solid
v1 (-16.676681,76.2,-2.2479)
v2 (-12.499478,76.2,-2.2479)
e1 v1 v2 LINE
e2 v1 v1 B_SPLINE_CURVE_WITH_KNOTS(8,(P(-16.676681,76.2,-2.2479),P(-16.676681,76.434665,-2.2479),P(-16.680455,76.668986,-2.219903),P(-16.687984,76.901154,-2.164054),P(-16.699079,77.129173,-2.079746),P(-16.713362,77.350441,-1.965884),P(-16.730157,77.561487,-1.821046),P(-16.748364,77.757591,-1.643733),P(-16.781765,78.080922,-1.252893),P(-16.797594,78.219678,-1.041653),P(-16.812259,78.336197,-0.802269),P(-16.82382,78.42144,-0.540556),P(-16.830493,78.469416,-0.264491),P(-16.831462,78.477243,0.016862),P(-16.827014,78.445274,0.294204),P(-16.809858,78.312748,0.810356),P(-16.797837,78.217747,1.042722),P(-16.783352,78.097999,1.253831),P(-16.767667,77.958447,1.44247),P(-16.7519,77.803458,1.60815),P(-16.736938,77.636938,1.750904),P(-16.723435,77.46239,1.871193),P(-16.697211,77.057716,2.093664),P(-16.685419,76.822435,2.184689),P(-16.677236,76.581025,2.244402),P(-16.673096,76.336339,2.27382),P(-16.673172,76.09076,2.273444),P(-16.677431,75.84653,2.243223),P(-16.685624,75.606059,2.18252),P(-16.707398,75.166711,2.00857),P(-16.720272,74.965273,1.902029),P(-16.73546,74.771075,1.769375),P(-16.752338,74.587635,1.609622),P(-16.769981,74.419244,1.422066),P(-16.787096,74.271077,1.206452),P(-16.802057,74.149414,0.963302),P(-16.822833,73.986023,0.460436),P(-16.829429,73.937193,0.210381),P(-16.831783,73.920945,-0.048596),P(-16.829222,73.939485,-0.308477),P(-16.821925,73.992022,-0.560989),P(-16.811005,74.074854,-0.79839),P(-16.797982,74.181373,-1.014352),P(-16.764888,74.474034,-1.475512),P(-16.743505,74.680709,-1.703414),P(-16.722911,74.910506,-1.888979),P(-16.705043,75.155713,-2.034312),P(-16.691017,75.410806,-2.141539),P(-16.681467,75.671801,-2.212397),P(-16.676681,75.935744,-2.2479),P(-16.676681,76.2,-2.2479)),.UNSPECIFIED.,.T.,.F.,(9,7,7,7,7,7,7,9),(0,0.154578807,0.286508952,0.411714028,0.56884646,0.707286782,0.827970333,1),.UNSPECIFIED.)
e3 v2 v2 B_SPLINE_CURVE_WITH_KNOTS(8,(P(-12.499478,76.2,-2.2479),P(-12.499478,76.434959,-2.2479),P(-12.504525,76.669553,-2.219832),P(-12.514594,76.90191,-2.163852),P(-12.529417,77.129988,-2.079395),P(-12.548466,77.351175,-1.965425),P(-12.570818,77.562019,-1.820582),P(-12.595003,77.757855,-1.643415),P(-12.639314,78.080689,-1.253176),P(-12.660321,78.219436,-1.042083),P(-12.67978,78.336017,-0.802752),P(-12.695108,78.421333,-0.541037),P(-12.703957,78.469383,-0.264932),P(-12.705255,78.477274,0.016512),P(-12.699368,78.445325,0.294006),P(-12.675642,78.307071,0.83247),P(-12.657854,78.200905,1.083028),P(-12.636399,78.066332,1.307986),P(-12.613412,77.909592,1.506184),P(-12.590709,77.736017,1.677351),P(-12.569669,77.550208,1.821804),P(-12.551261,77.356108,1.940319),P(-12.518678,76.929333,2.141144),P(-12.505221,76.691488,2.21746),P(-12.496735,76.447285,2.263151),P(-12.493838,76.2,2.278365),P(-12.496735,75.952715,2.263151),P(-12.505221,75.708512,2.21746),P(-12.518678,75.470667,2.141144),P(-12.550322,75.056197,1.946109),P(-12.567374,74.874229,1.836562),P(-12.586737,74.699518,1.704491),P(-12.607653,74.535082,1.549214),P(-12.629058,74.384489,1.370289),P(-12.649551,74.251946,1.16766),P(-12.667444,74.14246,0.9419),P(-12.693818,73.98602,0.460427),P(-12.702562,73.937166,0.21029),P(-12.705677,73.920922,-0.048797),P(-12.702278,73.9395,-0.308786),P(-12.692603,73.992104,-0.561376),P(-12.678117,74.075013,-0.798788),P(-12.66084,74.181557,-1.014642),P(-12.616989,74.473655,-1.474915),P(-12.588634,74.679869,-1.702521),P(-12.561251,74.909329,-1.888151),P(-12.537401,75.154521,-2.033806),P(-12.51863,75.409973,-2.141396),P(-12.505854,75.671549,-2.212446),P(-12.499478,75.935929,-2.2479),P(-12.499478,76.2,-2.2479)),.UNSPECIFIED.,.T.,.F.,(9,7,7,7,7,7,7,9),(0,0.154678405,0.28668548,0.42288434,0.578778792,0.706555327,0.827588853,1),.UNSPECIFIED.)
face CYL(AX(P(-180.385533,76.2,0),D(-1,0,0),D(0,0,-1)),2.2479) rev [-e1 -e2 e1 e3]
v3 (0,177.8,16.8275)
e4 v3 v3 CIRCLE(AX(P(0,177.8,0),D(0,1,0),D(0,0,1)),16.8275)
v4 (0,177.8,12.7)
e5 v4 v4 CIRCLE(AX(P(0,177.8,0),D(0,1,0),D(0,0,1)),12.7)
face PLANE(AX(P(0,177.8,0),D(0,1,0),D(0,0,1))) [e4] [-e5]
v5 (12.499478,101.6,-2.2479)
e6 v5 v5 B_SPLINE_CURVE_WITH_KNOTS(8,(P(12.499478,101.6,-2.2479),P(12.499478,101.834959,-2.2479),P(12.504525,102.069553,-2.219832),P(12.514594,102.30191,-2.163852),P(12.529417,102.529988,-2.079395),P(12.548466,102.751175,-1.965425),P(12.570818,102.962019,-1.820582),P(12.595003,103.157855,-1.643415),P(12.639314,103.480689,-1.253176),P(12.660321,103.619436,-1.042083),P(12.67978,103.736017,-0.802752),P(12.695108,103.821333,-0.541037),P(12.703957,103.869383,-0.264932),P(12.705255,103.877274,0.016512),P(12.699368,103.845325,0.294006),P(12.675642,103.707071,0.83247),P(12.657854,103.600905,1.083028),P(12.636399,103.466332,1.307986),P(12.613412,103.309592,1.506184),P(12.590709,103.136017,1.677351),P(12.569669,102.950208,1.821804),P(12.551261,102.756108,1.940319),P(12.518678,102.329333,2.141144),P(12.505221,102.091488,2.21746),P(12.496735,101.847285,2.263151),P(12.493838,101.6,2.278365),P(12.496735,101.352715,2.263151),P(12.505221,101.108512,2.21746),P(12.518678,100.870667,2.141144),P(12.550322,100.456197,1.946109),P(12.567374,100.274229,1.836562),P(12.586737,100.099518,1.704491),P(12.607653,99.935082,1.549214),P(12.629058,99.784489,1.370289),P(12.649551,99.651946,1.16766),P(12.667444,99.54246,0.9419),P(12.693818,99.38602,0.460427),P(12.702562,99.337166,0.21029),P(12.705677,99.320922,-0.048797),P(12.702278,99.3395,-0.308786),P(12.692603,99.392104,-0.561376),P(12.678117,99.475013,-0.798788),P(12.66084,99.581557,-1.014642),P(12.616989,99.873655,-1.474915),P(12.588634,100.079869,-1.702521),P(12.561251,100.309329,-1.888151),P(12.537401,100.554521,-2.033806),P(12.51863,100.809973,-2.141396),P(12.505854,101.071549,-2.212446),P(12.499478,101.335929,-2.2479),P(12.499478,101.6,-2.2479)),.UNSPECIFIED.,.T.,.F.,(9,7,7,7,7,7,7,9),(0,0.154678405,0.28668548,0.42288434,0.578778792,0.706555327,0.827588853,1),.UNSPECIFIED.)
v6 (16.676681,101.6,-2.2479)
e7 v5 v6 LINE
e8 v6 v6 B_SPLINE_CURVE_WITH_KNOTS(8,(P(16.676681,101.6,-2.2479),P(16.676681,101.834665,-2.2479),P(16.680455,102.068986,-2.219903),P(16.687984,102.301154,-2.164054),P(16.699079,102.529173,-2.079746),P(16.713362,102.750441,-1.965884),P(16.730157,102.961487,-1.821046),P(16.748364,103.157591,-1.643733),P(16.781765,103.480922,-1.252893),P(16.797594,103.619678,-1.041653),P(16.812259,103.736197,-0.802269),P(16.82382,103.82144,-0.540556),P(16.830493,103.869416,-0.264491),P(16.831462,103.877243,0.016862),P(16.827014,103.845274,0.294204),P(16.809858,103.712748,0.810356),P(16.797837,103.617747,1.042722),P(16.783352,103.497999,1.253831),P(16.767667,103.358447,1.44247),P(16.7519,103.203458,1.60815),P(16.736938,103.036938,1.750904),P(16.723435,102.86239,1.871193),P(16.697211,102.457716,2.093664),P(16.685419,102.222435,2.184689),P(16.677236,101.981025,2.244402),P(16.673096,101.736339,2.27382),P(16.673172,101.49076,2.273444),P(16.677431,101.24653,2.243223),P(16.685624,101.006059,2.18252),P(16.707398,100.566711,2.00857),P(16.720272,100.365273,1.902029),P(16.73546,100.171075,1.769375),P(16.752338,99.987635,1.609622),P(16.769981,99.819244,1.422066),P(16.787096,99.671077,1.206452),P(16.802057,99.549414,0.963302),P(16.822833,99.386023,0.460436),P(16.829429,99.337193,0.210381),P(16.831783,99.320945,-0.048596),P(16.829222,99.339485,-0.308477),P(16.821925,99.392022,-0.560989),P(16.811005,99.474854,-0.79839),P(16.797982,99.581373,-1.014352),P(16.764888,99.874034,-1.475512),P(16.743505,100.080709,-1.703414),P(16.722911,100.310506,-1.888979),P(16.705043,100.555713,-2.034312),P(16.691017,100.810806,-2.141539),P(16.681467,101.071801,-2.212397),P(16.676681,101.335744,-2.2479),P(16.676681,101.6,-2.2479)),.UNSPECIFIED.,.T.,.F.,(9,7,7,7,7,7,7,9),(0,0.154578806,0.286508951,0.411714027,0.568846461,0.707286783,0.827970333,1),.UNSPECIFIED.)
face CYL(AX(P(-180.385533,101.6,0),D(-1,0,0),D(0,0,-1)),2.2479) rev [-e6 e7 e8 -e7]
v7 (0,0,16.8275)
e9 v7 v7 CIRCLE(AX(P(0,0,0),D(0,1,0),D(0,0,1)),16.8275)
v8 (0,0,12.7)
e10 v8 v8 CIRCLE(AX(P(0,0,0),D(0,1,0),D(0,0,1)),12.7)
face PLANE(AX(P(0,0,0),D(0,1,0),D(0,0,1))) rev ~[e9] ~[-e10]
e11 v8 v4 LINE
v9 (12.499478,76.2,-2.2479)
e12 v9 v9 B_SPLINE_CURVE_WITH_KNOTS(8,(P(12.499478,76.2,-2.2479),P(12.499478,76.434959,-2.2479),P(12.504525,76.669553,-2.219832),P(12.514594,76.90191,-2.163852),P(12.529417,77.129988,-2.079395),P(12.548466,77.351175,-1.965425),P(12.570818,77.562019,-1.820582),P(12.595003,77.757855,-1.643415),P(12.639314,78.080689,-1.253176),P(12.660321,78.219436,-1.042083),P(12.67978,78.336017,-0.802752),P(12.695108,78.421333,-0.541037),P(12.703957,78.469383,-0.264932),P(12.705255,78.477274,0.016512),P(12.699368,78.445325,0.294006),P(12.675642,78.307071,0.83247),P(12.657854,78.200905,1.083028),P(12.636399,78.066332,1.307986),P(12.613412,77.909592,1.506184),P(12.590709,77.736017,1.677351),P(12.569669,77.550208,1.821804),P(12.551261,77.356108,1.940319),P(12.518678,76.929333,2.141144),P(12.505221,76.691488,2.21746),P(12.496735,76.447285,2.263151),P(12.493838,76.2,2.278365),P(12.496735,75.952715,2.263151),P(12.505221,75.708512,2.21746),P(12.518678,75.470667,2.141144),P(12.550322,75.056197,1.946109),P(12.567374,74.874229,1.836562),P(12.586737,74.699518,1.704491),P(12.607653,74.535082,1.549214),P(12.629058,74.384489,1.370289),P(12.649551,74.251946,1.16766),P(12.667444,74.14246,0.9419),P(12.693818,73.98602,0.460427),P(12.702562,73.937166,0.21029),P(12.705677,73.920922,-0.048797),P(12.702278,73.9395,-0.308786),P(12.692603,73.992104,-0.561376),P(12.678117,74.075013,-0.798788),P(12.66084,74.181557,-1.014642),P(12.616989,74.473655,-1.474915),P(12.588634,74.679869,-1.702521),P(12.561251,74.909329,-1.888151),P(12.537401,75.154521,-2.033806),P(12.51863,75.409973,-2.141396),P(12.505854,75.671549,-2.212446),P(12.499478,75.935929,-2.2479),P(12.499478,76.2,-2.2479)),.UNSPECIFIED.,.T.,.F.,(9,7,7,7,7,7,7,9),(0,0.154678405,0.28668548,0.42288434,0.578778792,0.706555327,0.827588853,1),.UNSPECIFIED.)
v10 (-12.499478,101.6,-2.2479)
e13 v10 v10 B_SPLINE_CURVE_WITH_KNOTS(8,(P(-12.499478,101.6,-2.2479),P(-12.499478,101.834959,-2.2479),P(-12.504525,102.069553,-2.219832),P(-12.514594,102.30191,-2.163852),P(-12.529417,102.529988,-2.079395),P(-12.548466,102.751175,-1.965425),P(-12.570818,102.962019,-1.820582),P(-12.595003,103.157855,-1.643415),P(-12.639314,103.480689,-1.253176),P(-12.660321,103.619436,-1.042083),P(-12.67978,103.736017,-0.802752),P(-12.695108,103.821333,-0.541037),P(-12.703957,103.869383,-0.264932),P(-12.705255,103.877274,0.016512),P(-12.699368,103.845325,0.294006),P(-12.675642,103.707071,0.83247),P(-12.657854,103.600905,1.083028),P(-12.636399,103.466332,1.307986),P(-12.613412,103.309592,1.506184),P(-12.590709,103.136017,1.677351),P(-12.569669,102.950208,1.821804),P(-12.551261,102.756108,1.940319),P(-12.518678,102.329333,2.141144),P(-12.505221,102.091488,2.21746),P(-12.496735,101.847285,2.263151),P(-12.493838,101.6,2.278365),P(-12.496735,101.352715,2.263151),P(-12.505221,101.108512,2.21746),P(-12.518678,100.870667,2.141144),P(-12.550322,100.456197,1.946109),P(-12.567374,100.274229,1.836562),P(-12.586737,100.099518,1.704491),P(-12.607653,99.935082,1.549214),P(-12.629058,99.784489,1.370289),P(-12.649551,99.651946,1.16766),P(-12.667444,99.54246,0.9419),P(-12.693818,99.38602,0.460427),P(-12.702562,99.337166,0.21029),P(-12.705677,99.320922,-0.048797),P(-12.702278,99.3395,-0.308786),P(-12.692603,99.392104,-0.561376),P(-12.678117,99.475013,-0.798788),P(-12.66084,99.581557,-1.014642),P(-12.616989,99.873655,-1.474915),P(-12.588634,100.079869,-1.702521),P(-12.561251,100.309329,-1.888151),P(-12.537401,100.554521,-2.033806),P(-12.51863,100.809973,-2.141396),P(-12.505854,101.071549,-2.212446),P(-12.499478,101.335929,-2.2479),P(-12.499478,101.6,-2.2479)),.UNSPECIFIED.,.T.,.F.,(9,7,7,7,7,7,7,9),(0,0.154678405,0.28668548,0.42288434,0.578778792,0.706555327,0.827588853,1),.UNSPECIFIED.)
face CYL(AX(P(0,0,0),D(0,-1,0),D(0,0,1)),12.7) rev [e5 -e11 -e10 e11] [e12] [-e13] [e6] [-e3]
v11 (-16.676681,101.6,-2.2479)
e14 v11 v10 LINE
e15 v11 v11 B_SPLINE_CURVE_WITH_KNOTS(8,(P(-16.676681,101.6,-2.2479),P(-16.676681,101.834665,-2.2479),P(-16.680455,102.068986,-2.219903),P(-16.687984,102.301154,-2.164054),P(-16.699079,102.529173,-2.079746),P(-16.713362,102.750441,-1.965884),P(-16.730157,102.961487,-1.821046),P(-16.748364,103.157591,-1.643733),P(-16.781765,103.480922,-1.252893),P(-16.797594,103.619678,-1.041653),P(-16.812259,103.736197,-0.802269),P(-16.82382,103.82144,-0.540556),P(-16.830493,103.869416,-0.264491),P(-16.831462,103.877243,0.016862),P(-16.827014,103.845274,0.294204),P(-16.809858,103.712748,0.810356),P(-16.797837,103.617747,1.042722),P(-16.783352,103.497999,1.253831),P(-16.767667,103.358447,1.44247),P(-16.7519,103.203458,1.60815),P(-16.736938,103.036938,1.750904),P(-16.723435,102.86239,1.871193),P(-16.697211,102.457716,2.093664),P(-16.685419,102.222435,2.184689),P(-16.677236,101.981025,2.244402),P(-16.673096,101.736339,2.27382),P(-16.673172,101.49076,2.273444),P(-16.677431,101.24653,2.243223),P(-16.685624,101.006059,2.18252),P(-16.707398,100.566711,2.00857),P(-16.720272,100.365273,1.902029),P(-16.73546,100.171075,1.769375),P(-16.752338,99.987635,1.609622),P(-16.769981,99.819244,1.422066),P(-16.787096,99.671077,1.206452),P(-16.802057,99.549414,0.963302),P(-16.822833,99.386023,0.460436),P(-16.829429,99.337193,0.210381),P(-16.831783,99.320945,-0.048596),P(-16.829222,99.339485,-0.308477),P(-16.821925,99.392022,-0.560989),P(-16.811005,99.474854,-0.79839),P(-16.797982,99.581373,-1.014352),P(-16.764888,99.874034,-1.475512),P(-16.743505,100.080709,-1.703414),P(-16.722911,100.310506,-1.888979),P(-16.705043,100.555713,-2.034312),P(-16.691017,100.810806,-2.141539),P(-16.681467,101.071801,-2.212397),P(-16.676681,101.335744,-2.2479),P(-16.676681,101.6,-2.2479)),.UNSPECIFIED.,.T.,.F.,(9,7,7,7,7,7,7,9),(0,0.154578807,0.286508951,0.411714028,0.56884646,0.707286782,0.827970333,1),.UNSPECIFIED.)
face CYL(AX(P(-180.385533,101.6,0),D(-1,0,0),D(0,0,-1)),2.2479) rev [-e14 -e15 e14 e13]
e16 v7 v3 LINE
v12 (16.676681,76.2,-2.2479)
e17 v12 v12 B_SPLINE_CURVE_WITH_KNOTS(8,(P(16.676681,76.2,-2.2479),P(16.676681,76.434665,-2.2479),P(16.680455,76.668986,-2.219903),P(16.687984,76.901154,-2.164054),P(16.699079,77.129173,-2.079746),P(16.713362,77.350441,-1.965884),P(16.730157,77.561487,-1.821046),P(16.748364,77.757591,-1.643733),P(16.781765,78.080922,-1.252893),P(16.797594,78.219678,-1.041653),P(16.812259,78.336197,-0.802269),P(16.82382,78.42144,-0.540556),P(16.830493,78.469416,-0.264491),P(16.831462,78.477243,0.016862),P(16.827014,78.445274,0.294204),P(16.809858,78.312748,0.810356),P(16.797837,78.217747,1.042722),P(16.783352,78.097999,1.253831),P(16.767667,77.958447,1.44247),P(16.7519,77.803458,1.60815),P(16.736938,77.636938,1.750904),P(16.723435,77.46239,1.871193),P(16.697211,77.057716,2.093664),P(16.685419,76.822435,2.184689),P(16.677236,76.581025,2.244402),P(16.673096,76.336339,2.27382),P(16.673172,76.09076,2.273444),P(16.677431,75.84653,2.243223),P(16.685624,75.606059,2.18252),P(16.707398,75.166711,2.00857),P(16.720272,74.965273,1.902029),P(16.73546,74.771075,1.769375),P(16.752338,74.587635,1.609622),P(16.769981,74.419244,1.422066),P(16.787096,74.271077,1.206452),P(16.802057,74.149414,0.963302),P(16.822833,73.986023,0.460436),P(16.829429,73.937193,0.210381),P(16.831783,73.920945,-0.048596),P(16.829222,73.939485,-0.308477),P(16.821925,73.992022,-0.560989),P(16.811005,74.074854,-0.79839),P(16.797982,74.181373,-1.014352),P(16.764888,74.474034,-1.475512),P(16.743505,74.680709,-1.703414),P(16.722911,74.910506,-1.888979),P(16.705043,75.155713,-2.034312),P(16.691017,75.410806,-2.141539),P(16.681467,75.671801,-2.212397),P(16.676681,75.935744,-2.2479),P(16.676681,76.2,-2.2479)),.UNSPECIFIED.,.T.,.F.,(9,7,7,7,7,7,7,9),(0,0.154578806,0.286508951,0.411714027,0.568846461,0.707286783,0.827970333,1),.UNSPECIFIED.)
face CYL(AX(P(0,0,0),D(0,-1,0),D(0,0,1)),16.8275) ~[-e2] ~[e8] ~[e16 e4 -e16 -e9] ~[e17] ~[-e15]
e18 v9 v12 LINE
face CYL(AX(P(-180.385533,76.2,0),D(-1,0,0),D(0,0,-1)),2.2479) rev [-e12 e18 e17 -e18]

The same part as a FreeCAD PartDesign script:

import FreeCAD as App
import Part
import Sketcher
Q = App.Units.Quantity

doc = App.newDocument("Part")
params = doc.addObject("Spreadsheet::Sheet", "Params")
for row, (alias, value) in enumerate([
    ("sketch1_diameter", "1 in"),
    ("sketch1_diameter2", "1.325 in"),
    ("pad1_length", "7 in"),
    ("sketch2_diameter", "0.177 in"),
], start=1):
    params.set(f"A{row}", alias)
    params.set(f"B{row}", "=" + value)
    params.setAlias(f"B{row}", alias)

body = doc.addObject("PartDesign::Body", "Body")

# Sketch on XZ plane
sketch1 = body.newObject("Sketcher::SketchObject", "Sketch")
sketch1.AttachmentSupport = (doc.getObject("XZ_Plane"), [""])
sketch1.MapMode = "FlatFace"
sketch1.addGeometry([
    Part.Circle(App.Vector(0, 0, 0), App.Vector(0, 0, 1), 17),
    Part.Circle(App.Vector(0, 0, 0), App.Vector(0, 0, 1), 13),
], False)
sketch1.addConstraint([
    Sketcher.Constraint("Coincident", 0, 3, -1, 1),
    Sketcher.Constraint("Coincident", 1, 3, -1, 1),
    Sketcher.Constraint("Diameter", 1, Q("1 in")),
    Sketcher.Constraint("Diameter", 0, Q("1.325 in")),
])
sketch1.setExpression("Constraints[2]", "Params.sketch1_diameter")
sketch1.setExpression("Constraints[3]", "Params.sketch1_diameter2")
pad1 = body.newObject("PartDesign::Pad", "Pad")
pad1.Profile = sketch1
pad1.setExpression("Length", "Params.pad1_length")
pad1.Reversed = True

# Sketch on YZ plane
sketch2 = body.newObject("Sketcher::SketchObject", "Sketch001")
sketch2.AttachmentSupport = (doc.getObject("YZ_Plane"), [""])
sketch2.MapMode = "FlatFace"
sketch2.addGeometry([
    Part.Circle(App.Vector(76.2, 0, 0), App.Vector(0, 0, 1), 2.2),
    Part.Circle(App.Vector(101.6, 0, 0), App.Vector(0, 0, 1), 2.2),
], False)
sketch2.addConstraint([
    Sketcher.Constraint("Equal", 0, 1),
    Sketcher.Constraint("PointOnObject", 0, 3, -1),
    Sketcher.Constraint("PointOnObject", 1, 3, -1),
    Sketcher.Constraint("Diameter", 0, Q("0.177 in")),
    Sketcher.Constraint("DistanceX", -1, 1, 0, 3, Q("3 in")),
    Sketcher.Constraint("DistanceX", -1, 1, 1, 3, Q("4 in")),
])
sketch2.setExpression("Constraints[3]", "Params.sketch2_diameter")
pocket1 = body.newObject("PartDesign::Pocket", "Pocket")
pocket1.Profile = sketch2
pocket1.Type = "ThroughAll"
pocket1.Midplane = True

doc.recompute()
